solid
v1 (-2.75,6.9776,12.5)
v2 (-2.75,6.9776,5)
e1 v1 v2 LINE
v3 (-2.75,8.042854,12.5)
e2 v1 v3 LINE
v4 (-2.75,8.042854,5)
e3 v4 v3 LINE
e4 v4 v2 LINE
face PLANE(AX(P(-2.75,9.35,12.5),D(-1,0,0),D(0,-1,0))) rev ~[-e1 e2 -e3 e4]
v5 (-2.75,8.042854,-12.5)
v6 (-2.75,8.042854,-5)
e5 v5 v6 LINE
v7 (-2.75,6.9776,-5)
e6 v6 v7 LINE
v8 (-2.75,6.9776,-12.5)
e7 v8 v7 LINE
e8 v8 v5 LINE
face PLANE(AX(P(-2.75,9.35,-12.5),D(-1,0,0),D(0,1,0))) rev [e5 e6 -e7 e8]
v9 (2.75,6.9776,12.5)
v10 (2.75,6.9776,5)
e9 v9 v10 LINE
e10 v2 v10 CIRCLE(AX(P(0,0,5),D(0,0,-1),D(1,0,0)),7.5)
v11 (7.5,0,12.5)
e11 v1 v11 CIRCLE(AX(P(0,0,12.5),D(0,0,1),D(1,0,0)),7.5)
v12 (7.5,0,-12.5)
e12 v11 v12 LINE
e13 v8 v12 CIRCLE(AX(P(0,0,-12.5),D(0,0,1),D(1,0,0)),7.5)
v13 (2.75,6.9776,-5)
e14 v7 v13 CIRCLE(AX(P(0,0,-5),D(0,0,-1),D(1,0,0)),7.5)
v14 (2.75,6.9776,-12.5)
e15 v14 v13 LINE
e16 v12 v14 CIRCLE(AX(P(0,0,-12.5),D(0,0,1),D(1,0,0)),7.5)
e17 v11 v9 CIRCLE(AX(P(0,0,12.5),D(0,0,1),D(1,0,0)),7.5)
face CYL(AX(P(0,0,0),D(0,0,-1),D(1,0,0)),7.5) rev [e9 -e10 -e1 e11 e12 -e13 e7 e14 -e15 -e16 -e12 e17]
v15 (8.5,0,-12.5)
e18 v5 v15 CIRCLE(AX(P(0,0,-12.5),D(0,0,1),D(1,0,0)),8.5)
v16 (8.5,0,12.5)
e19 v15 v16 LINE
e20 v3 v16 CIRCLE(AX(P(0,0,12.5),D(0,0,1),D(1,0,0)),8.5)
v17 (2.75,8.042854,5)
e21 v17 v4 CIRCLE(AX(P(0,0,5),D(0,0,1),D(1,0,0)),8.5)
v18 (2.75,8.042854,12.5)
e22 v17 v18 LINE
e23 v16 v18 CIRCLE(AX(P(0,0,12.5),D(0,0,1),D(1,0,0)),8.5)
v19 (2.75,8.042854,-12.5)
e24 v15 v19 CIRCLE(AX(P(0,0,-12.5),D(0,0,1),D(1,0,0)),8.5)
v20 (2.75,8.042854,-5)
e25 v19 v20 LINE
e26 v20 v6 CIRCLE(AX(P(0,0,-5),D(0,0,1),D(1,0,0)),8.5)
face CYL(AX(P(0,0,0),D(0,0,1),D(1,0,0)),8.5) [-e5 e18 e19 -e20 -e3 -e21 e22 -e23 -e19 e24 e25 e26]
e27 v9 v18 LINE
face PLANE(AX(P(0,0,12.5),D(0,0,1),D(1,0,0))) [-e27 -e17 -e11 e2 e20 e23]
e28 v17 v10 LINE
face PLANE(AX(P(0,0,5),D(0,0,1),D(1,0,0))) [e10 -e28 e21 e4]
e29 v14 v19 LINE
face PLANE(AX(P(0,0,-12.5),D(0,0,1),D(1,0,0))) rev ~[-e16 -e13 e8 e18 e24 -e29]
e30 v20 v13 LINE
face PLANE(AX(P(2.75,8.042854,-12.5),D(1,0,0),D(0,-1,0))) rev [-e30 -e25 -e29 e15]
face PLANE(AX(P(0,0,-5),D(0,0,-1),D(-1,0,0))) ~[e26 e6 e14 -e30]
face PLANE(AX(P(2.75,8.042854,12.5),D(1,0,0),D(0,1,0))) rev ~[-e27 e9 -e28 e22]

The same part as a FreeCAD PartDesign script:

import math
import FreeCAD as App
import Part
import Sketcher

doc = App.newDocument("Part")
body = doc.addObject("PartDesign::Body", "Body")

sketch1 = body.newObject("Sketcher::SketchObject", "Sketch")
sketch1.AttachmentSupport = (doc.getObject("XY_Plane"), [""])
sketch1.MapMode = "FlatFace"
sketch1.addGeometry([
    Part.Circle(App.Vector(0, 0, 0), App.Vector(0, 0, 1), 8),
    Part.Circle(App.Vector(0, 0, 0), App.Vector(0, 0, 1), 8),
], False)
sketch1.addConstraint([
    Sketcher.Constraint("Coincident", 0, 3, -1, 1),
    Sketcher.Constraint("Coincident", 1, 3, -1, 1),
    Sketcher.Constraint("Diameter", 0, 17.0),
    Sketcher.Constraint("Diameter", 1, 15.0),
])
pad1 = body.newObject("PartDesign::Pad", "Pad")
pad1.Profile = sketch1
pad1.Length = 25
pad1.Midplane = True

sketch2 = body.newObject("Sketcher::SketchObject", "Sketch001")
sketch2.AttachmentSupport = (doc.getObject("XY_Plane"), [""])
sketch2.MapMode = "FlatFace"
sketch2.AttachmentOffset = App.Placement(App.Vector(0, 0, 12.5), App.Rotation())
sketch2.addGeometry([
    Part.ArcOfCircle(Part.Circle(App.Vector(-2.2, 9.3, 0), App.Vector(0, 0, 1), 0.5), math.radians(90), math.radians(180)),
    Part.LineSegment(App.Vector(-2.8, 9.3, 0), App.Vector(-2.8, 7, 0)),
    Part.LineSegment(App.Vector(-2.8, 7, 0), App.Vector(2.8, 7, 0)),
    Part.LineSegment(App.Vector(2.8, 7, 0), App.Vector(2.8, 9.3, 0)),
    Part.ArcOfCircle(Part.Circle(App.Vector(2.2, 9.3, 0), App.Vector(0, 0, 1), 0.5), math.radians(0), math.radians(90)),
    Part.LineSegment(App.Vector(2.2, 9.8, 0), App.Vector(-2.2, 9.8, 0)),
], False)
sketch2.addConstraint([
    Sketcher.Constraint("Tangent", 0, 2, 1, 1),
    Sketcher.Constraint("Coincident", 1, 2, 2, 1),
    Sketcher.Constraint("Coincident", 2, 2, 3, 1),
    Sketcher.Constraint("Tangent", 3, 2, 4, 1),
    Sketcher.Constraint("Tangent", 4, 2, 5, 1),
    Sketcher.Constraint("Tangent", 5, 2, 0, 1),
    Sketcher.Constraint("Vertical", 1),
    Sketcher.Constraint("Horizontal", 2),
    Sketcher.Constraint("Vertical", 3),
    Sketcher.Constraint("Horizontal", 5),
    Sketcher.Constraint("Equal", 0, 4),
    Sketcher.Constraint("Radius", 0, 0.5),
    Sketcher.Constraint("DistanceX", 2, 1, 2, 2, 5.5),
    Sketcher.Constraint("DistanceX", 0, 3, -1, 1, 2.25),
    Sketcher.Constraint("DistanceY", -1, 1, 0, 3, 9.35),
    Sketcher.Constraint("DistanceY", 1, 2, 1, 1, 2.3724),
])
pocket1 = body.newObject("PartDesign::Pocket", "Pocket")
pocket1.Profile = sketch2
pocket1.Length = 7.5
doc.recompute()

mirrored = body.newObject("PartDesign::Mirrored", "Mirrored")
mirrored.Originals = [pocket1]
mirrored.MirrorPlane = (doc.getObject("XY_Plane"), [""])
body.Tip = mirrored

doc.recompute()
